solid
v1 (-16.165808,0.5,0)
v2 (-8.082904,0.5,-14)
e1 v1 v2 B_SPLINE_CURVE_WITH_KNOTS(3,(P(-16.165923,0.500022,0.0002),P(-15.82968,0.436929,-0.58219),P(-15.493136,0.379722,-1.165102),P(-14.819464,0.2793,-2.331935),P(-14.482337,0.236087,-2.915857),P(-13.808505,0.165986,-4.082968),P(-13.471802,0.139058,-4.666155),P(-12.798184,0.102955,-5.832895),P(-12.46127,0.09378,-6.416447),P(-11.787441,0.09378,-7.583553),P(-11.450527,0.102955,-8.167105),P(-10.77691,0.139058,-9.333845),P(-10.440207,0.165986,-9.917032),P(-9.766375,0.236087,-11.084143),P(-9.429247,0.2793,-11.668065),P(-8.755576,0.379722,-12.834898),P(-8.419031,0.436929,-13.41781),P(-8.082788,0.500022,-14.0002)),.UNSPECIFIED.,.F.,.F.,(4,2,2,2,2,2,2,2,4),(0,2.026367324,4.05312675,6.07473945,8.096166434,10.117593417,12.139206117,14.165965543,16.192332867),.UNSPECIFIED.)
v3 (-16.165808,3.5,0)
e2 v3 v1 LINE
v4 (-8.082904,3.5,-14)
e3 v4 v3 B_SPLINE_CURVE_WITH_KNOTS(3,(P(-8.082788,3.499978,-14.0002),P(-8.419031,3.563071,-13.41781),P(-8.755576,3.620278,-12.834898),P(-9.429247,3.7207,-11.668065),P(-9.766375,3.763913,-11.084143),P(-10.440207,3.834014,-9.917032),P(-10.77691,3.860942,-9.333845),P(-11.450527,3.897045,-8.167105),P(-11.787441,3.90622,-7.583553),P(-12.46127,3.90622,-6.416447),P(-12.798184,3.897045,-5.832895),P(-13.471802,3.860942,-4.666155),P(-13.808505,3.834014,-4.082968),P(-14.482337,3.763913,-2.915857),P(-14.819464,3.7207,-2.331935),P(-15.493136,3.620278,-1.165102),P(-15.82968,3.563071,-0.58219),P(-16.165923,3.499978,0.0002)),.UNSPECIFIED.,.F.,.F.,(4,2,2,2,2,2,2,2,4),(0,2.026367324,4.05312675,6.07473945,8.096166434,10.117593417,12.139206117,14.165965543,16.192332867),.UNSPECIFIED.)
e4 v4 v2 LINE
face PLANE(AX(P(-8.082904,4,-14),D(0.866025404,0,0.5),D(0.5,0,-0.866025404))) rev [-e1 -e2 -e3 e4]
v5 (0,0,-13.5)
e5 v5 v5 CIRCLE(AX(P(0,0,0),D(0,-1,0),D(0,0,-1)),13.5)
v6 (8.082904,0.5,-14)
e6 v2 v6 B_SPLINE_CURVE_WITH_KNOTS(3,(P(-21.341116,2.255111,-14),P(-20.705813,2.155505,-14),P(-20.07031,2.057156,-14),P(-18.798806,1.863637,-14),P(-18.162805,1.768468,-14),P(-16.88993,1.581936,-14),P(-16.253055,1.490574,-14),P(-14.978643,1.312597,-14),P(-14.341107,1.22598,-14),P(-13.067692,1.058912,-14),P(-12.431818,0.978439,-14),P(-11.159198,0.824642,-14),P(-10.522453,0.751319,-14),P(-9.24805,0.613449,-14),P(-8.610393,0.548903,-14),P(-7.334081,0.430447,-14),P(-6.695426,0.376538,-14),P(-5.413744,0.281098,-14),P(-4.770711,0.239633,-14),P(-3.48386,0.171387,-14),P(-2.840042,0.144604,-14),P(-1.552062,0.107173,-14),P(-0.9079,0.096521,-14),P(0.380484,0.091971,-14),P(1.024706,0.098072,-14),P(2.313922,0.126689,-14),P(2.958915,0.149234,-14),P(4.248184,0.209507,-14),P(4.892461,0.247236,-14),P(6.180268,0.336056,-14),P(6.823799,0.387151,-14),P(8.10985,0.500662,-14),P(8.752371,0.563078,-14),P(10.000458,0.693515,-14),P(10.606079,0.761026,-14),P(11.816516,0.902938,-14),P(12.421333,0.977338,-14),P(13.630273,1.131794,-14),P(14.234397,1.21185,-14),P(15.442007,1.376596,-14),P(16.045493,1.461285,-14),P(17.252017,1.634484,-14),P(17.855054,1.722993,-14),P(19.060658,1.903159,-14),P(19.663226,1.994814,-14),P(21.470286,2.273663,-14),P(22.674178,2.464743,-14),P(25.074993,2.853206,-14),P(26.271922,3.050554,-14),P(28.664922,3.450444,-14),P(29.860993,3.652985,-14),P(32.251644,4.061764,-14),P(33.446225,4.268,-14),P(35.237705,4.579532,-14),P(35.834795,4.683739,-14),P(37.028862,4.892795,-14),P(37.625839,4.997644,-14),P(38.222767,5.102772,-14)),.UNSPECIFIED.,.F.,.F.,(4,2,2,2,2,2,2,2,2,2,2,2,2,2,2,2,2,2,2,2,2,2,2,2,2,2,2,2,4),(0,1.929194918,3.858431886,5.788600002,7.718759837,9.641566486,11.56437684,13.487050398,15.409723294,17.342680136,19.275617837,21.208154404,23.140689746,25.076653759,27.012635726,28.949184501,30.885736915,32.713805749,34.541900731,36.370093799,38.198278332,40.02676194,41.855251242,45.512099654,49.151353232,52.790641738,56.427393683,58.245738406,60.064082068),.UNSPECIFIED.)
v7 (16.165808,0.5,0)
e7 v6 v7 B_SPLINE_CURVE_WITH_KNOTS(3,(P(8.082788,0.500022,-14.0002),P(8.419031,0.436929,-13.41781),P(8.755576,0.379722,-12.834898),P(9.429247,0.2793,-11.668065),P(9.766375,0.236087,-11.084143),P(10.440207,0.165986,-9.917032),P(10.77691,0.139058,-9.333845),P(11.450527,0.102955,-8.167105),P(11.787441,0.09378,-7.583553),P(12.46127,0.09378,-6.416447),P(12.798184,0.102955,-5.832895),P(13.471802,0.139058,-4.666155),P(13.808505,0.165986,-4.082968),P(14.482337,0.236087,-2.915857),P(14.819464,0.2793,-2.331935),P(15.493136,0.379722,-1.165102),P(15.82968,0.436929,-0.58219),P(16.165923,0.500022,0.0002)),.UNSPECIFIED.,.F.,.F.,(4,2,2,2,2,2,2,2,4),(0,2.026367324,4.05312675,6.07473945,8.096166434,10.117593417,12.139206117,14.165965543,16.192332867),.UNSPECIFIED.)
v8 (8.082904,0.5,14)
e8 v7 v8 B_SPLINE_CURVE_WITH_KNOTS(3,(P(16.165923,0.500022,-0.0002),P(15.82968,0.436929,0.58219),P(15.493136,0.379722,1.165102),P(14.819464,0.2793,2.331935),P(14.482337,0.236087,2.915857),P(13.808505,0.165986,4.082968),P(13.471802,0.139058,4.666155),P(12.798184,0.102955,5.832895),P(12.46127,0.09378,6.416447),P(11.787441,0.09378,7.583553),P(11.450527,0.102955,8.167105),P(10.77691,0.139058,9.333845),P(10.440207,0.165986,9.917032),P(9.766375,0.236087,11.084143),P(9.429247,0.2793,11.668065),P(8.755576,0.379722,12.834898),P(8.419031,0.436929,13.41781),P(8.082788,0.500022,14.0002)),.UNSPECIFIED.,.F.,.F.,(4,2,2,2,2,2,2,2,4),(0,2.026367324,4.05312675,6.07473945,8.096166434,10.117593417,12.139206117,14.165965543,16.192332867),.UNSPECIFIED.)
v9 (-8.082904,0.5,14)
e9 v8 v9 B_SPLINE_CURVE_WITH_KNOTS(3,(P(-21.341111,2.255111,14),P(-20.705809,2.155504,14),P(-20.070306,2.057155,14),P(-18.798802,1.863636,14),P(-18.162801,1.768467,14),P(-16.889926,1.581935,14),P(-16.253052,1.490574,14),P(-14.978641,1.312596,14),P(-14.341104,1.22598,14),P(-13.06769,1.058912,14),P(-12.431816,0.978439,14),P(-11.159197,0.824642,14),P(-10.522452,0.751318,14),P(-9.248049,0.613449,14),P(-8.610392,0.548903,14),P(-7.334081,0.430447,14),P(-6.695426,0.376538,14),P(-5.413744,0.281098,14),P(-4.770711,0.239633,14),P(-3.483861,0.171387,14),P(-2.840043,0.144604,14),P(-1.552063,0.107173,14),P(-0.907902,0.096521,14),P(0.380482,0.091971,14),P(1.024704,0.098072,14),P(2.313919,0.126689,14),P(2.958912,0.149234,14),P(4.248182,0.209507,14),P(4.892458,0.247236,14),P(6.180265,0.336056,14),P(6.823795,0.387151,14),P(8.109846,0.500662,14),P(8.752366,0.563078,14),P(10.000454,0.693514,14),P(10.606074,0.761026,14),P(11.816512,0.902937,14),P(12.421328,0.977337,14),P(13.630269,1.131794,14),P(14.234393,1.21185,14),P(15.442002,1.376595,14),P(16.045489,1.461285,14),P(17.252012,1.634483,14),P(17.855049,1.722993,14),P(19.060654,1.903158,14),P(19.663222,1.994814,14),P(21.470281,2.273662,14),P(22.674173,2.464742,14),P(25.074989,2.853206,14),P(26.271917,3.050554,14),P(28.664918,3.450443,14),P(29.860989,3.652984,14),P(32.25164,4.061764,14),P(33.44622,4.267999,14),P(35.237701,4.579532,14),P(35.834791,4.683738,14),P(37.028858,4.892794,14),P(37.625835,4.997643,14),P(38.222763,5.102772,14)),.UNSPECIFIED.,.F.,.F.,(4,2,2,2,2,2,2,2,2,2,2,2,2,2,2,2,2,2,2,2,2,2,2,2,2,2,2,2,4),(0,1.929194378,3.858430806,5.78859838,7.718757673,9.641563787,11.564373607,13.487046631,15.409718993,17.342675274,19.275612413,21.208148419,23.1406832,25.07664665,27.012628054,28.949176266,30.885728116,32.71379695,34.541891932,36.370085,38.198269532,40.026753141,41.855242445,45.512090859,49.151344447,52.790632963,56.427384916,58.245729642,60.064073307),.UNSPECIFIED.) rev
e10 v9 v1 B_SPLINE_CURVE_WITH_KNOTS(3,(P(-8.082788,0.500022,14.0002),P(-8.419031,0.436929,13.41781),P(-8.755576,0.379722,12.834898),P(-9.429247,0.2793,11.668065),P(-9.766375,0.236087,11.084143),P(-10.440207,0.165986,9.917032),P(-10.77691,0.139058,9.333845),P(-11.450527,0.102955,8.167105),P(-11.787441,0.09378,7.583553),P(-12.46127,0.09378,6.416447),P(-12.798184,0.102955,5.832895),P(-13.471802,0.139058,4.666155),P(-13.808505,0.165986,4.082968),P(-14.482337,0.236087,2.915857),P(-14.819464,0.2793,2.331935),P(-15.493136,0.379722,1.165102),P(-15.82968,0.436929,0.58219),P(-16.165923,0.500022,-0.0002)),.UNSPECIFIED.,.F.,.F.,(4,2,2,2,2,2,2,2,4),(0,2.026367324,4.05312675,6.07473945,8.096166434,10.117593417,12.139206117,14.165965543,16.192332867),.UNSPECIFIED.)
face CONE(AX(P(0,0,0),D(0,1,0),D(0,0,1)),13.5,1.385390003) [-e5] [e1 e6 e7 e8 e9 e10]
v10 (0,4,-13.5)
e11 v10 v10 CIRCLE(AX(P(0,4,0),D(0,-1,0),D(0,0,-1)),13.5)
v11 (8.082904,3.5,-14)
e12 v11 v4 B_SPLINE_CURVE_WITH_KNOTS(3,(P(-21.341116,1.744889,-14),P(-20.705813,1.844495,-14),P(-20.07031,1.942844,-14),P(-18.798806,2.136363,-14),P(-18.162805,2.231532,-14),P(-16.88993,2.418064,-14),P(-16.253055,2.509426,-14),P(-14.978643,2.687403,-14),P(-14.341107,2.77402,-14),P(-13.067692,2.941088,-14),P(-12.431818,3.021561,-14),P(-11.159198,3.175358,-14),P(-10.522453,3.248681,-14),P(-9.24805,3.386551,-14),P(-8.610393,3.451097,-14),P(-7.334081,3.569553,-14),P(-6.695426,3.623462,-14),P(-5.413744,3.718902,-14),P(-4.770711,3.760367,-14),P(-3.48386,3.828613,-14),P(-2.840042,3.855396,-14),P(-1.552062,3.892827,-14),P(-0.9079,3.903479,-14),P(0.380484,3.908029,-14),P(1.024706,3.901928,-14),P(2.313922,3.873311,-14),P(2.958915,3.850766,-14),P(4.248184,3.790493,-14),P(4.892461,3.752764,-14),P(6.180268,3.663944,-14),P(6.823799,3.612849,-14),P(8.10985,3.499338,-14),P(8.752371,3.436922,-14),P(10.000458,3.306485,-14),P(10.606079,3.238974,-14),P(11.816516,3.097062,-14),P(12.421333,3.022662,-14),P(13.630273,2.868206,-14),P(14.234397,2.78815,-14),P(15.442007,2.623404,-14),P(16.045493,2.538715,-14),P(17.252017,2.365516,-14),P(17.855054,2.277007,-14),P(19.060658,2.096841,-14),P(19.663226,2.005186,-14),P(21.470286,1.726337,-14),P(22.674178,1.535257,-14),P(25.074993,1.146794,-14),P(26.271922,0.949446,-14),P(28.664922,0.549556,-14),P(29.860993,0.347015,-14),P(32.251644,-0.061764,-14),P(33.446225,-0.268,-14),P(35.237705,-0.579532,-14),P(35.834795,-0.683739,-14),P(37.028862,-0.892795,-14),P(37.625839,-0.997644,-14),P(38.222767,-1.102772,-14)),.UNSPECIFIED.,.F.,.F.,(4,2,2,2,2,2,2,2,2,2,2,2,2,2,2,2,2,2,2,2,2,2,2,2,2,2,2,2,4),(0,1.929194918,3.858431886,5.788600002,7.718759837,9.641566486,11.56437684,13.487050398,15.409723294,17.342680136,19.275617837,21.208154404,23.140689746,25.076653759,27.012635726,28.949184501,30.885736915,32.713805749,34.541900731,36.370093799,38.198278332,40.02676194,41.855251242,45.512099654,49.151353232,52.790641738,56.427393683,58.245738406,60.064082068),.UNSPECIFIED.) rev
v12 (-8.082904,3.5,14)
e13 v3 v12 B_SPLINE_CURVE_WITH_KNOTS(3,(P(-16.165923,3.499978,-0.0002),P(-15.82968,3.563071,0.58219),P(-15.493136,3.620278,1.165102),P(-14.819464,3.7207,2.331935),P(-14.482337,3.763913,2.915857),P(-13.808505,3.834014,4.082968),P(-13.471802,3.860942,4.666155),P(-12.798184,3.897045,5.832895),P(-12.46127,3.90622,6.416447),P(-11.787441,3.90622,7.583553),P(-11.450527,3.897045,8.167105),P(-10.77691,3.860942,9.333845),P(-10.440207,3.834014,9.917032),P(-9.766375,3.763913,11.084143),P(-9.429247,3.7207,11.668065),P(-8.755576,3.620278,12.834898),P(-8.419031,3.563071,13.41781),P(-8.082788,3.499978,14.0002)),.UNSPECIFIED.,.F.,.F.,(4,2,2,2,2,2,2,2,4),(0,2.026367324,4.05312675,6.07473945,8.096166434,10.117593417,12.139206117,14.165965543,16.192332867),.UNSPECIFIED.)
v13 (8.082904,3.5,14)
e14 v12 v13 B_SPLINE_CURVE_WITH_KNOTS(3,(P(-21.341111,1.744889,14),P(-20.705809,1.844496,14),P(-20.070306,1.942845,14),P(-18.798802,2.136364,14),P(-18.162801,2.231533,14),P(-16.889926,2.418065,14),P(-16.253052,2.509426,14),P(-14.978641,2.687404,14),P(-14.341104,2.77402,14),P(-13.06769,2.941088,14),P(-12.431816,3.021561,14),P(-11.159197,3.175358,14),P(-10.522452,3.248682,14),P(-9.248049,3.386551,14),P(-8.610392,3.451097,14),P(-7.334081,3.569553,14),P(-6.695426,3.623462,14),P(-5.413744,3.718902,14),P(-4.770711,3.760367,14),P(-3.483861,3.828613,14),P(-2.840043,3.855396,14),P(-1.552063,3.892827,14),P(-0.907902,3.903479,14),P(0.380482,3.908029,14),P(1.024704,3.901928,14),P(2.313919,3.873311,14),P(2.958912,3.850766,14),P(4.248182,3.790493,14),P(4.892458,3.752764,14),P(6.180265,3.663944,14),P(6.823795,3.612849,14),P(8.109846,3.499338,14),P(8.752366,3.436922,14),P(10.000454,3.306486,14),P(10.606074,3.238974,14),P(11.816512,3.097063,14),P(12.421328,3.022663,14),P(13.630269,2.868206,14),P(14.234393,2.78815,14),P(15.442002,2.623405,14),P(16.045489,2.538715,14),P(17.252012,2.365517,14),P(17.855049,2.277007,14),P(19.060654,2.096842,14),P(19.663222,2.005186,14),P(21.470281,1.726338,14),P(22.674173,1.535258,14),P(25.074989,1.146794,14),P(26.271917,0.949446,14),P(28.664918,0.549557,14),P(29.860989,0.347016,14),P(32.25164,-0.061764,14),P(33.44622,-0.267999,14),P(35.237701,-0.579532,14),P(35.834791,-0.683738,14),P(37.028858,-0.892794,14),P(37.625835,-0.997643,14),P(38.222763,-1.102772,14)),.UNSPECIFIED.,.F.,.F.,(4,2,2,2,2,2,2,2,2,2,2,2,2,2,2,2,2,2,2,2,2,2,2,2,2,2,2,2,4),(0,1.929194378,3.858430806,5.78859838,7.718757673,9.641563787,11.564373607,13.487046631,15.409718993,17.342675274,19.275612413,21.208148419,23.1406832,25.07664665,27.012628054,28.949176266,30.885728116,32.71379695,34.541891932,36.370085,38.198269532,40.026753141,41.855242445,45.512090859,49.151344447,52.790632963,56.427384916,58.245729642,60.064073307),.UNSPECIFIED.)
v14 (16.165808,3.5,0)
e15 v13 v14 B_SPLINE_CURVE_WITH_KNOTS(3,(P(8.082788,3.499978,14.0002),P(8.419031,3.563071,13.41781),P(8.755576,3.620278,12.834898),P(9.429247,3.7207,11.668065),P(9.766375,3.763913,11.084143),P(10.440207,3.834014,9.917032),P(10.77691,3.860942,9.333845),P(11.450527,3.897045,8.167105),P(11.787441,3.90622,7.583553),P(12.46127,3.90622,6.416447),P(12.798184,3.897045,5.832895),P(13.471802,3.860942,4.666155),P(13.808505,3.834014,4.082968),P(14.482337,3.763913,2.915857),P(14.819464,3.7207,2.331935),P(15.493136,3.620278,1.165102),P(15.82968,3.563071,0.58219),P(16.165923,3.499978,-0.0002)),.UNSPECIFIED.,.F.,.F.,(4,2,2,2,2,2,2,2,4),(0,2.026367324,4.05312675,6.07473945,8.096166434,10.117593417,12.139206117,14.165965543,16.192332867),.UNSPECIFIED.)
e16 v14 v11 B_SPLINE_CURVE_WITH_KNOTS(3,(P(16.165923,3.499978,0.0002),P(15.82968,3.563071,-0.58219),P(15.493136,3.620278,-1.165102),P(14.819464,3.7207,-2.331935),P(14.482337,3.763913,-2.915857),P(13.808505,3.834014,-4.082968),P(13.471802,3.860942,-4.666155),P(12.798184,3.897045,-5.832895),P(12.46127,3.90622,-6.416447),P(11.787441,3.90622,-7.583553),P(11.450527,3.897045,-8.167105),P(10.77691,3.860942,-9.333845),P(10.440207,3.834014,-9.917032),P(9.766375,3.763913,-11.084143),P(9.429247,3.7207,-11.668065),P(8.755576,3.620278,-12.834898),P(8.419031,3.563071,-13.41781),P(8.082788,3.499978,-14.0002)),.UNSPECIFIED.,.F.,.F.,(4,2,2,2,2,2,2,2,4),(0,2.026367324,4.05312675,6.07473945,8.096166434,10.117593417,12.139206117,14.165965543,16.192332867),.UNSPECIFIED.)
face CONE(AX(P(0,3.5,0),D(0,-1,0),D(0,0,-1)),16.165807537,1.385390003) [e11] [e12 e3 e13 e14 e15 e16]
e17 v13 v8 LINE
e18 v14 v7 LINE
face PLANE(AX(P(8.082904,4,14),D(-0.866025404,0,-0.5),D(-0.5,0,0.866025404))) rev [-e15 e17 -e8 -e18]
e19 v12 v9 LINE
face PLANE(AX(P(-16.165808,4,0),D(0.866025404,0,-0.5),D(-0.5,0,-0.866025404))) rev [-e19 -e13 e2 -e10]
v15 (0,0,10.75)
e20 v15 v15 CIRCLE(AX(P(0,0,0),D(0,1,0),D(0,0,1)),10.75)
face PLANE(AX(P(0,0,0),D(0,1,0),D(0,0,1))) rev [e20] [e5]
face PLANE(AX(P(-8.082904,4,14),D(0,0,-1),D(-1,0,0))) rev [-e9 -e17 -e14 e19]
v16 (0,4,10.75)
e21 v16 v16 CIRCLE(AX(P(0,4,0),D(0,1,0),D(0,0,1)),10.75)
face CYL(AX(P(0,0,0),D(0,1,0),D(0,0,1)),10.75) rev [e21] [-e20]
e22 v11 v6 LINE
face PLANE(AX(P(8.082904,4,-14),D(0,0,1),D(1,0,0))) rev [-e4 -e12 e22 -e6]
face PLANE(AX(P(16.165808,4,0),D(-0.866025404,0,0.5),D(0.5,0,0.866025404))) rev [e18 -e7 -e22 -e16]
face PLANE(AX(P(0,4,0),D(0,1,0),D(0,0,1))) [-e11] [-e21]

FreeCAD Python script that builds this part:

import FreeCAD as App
import Part
import Sketcher
Q = App.Units.Quantity

doc = App.newDocument("Part")
body = doc.addObject("PartDesign::Body", "Body")

# Sketch on XZ plane
sketch1 = body.newObject("Sketcher::SketchObject", "Sketch")
sketch1.AttachmentSupport = (doc.getObject("XZ_Plane"), [""])
sketch1.MapMode = "FlatFace"
sketch1.addGeometry(Part.LineSegment(App.Vector(8, -14, 0), App.Vector(-8, -14, 0)), False)
sketch1.addGeometry(Part.LineSegment(App.Vector(-8, -14, 0), App.Vector(-16, 0, 0)), False)
sketch1.addGeometry(Part.LineSegment(App.Vector(-16, 0, 0), App.Vector(-8, 14, 0)), False)
sketch1.addGeometry(Part.LineSegment(App.Vector(-8, 14, 0), App.Vector(8, 14, 0)), False)
sketch1.addGeometry(Part.LineSegment(App.Vector(8, 14, 0), App.Vector(16, 0, 0)), False)
sketch1.addGeometry(Part.LineSegment(App.Vector(16, 0, 0), App.Vector(8, -14, 0)), False)
sketch1.addConstraint(Sketcher.Constraint("Coincident", 0, 2, 1, 1))
sketch1.addConstraint(Sketcher.Constraint("Coincident", 1, 2, 2, 1))
sketch1.addConstraint(Sketcher.Constraint("Coincident", 2, 2, 3, 1))
sketch1.addConstraint(Sketcher.Constraint("Coincident", 3, 2, 4, 1))
sketch1.addConstraint(Sketcher.Constraint("Coincident", 4, 2, 5, 1))
sketch1.addConstraint(Sketcher.Constraint("Coincident", 5, 2, 0, 1))
sketch1.addConstraint(Sketcher.Constraint("Horizontal", 0))
sketch1.addConstraint(Sketcher.Constraint("Horizontal", 3))
sketch1.addConstraint(Sketcher.Constraint("Symmetric", 0, 2, 3, 2, -1, 1))
sketch1.addConstraint(Sketcher.Constraint("Symmetric", 1, 2, 4, 2, -1, 1))
sketch1.addConstraint(Sketcher.Constraint("PointOnObject", 1, 2, -1))
sketch1.addConstraint(Sketcher.Constraint("Parallel", 2, 5))
sketch1.addConstraint(Sketcher.Constraint("Vertical", 0, 2, 2, 2))
sketch1.addConstraint(Sketcher.Constraint("Angle", 1, Q("120 deg")))
sketch1.addConstraint(Sketcher.Constraint("DistanceY", 0, 2, -1, 1, 14.0))
sketch1.addConstraint(Sketcher.Constraint("DistanceX", 0, 2, 0, 1, 16.165808))
pad1 = body.newObject("PartDesign::Pad", "Pad")
pad1.Profile = sketch1
pad1.Length = 4
pad1.Reversed = True

# Sketch on XZ plane
sketch2 = body.newObject("Sketcher::SketchObject", "Sketch001")
sketch2.AttachmentSupport = (doc.getObject("XZ_Plane"), [""])
sketch2.MapMode = "FlatFace"
sketch2.AttachmentOffset = App.Placement(App.Vector(0, 0, -4), App.Rotation())
sketch2.addGeometry(Part.Circle(App.Vector(0, 0, 0), App.Vector(0, 0, 1), 11), False)
sketch2.addConstraint(Sketcher.Constraint("Coincident", 0, 3, -1, 1))
sketch2.addConstraint(Sketcher.Constraint("Diameter", 0, 21.5))
pocket1 = body.newObject("PartDesign::Pocket", "Pocket")
pocket1.Profile = sketch2
pocket1.Type = "ThroughAll"
pocket1.Reversed = True

# Sketch on XY plane
sketch3 = body.newObject("Sketcher::SketchObject", "Sketch002")
sketch3.AttachmentSupport = (doc.getObject("XY_Plane"), [""])
sketch3.MapMode = "FlatFace"
sketch3.addGeometry(Part.LineSegment(App.Vector(-16.2, 4, 0), App.Vector(-16.2, 3.5, 0)), False)
sketch3.addGeometry(Part.LineSegment(App.Vector(-16.2, 3.5, 0), App.Vector(-13.5, 4, 0)), False)
sketch3.addGeometry(Part.LineSegment(App.Vector(-13.5, 4, 0), App.Vector(-16.2, 4, 0)), False)
sketch3.addGeometry(Part.LineSegment(App.Vector(-16.2, 0, 0), App.Vector(-13.5, 0, 0)), False)
sketch3.addGeometry(Part.LineSegment(App.Vector(-13.5, 0, 0), App.Vector(-16.2, 0.5, 0)), False)
sketch3.addGeometry(Part.LineSegment(App.Vector(-16.2, 0.5, 0), App.Vector(-16.2, 0, 0)), False)
sketch3.addConstraint(Sketcher.Constraint("Coincident", 0, 2, 1, 1))
sketch3.addConstraint(Sketcher.Constraint("Coincident", 1, 2, 2, 1))
sketch3.addConstraint(Sketcher.Constraint("Coincident", 2, 2, 0, 1))
sketch3.addConstraint(Sketcher.Constraint("Coincident", 3, 2, 4, 1))
sketch3.addConstraint(Sketcher.Constraint("Coincident", 4, 2, 5, 1))
sketch3.addConstraint(Sketcher.Constraint("Coincident", 5, 2, 3, 1))
sketch3.addConstraint(Sketcher.Constraint("Vertical", 0))
sketch3.addConstraint(Sketcher.Constraint("Horizontal", 2))
sketch3.addConstraint(Sketcher.Constraint("Horizontal", 3))
sketch3.addConstraint(Sketcher.Constraint("Vertical", 5))
sketch3.addConstraint(Sketcher.Constraint("PointOnObject", 3, 2, -1))
sketch3.addConstraint(Sketcher.Constraint("Vertical", 1, 2, 3, 2))
sketch3.addConstraint(Sketcher.Constraint("Vertical", 2, 2, 4, 2))
sketch3.addConstraint(Sketcher.Constraint("Equal", 0, 5))
sketch3.addConstraint(Sketcher.Constraint("DistanceY", 0, 2, 0, 1, 0.5))
sketch3.addConstraint(Sketcher.Constraint("DistanceY", -1, 1, 1, 2, 4.0))
sketch3.addConstraint(Sketcher.Constraint("DistanceX", 1, 2, -1, 1, 13.5))
sketch3.addConstraint(Sketcher.Constraint("DistanceX", 2, 2, 2, 1, 2.665808))
groove = body.newObject("PartDesign::Groove", "Groove")
groove.Profile = sketch3
groove.ReferenceAxis = (sketch3, ["V_Axis"])
groove.Angle = 360

doc.recompute()
